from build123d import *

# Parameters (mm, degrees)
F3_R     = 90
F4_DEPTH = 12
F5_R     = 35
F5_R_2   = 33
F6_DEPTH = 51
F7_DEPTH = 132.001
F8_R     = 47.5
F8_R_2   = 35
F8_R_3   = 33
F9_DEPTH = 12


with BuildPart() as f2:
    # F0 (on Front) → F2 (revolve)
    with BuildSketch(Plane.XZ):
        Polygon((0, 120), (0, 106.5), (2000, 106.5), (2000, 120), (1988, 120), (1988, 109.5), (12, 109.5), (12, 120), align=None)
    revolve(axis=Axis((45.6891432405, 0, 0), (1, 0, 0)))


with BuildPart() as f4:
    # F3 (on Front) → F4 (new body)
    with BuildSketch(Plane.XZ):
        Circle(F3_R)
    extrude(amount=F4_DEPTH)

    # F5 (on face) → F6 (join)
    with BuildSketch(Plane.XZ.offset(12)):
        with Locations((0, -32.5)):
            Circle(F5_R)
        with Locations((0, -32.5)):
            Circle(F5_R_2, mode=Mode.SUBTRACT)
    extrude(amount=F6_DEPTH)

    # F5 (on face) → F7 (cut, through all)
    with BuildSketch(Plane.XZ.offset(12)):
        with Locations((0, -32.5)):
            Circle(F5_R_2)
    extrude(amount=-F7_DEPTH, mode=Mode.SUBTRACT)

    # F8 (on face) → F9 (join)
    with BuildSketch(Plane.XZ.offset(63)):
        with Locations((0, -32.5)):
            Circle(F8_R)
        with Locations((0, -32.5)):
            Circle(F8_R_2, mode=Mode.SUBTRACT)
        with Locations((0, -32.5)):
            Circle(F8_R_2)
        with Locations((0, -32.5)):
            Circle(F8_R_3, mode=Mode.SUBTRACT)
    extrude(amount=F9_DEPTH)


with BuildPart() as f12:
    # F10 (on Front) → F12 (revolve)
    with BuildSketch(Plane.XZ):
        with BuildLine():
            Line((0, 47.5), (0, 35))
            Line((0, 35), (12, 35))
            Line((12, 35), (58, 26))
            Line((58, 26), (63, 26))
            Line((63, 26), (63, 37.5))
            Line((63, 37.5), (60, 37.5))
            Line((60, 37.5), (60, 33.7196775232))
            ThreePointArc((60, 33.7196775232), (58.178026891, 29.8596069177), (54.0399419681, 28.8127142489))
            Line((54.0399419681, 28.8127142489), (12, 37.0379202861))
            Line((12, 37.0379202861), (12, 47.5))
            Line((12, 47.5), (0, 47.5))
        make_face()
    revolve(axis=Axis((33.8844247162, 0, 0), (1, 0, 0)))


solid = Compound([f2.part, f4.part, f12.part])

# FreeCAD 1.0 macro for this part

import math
import FreeCAD as App
import Part
import Sketcher
from FreeCAD import Vector
Q = App.Units.Quantity


def add_polygon(sketch, points):
    """Adds a closed chain of lines whose ends are joined by coincident constraints."""
    first, n = sketch.GeometryCount, len(points)
    for a, b in zip(points, points[1:] + points[:1]):
        sketch.addGeometry(Part.LineSegment(App.Vector(*a, 0), App.Vector(*b, 0)), False)
    for i in range(n):
        sketch.addConstraint(Sketcher.Constraint("Coincident", first + i, 2, first + (i + 1) % n, 1))

doc = App.newDocument("Part")
body = doc.addObject("PartDesign::Body", "Body")

# Sketch on XZ plane
sketch1 = body.newObject("Sketcher::SketchObject", "Sketch")
sketch1.AttachmentSupport = (doc.getObject("XZ_Plane"), [""])
sketch1.MapMode = "FlatFace"
add_polygon(sketch1, [(0, 120), (0, 106), (2000, 106), (2000, 120), (1988, 120), (1988, 110), (12, 110), (12, 120)])  # lines 0-7
sketch1.addConstraint(Sketcher.Constraint("Vertical", 0))
sketch1.addConstraint(Sketcher.Constraint("Horizontal", 1))
sketch1.addConstraint(Sketcher.Constraint("Vertical", 2))
sketch1.addConstraint(Sketcher.Constraint("Horizontal", 3))
sketch1.addConstraint(Sketcher.Constraint("Vertical", 4))
sketch1.addConstraint(Sketcher.Constraint("Horizontal", 5))
sketch1.addConstraint(Sketcher.Constraint("Vertical", 6))
sketch1.addConstraint(Sketcher.Constraint("Horizontal", 7))
sketch1.addConstraint(Sketcher.Constraint("PointOnObject", 0, 2, -2))
sketch1.addConstraint(Sketcher.Constraint("Horizontal", 3, 2, 6, 2))
sketch1.addConstraint(Sketcher.Constraint("Equal", 3, 7))
sketch1.addConstraint(Sketcher.Constraint("DistanceX", 1, 1, 1, 2, Q("2000 mm")))
sketch1.addConstraint(Sketcher.Constraint("DistanceX", 3, 2, 3, 1, Q("12 mm")))
sketch1.addConstraint(Sketcher.Constraint("DistanceY", 0, 2, 0, 1, Q("13.5 mm")))
sketch1.addConstraint(Sketcher.Constraint("DistanceY", 4, 2, 4, 1, Q("10.5 mm")))
sketch1.addConstraint(Sketcher.Constraint("DistanceY", -1, 1, 2, 2, Q("120 mm")))
revolution = body.newObject("PartDesign::Revolution", "Revolution")
revolution.Profile = sketch1
revolution.ReferenceAxis = (sketch1, ["H_Axis"])
revolution.Angle = 360
body2 = doc.addObject("PartDesign::Body", "Body001")

# Sketch on XZ plane
sketch2 = body2.newObject("Sketcher::SketchObject", "Sketch001")
sketch2.AttachmentSupport = (doc.getObject("XZ_Plane001"), [""])
sketch2.MapMode = "FlatFace"
sketch2.addGeometry(Part.Circle(Vector(0, 0, 0), Vector(0, 0, 1), 90), False)
sketch2.addConstraint(Sketcher.Constraint("Coincident", 0, 3, -1, 1))
sketch2.addConstraint(Sketcher.Constraint("Diameter", 0, Q("180 mm")))
pad1 = body2.newObject("PartDesign::Pad", "Pad")
pad1.Profile = sketch2
pad1.Length = 12

# Sketch on XZ plane
sketch3 = body2.newObject("Sketcher::SketchObject", "Sketch002")
sketch3.AttachmentSupport = (doc.getObject("XZ_Plane001"), [""])
sketch3.MapMode = "FlatFace"
sketch3.AttachmentOffset = App.Placement(Vector(0, 0, 12), App.Rotation())
sketch3.addGeometry(Part.Circle(Vector(0, -32, 0), Vector(0, 0, 1), 35), False)
sketch3.addGeometry(Part.Circle(Vector(0, -32, 0), Vector(0, 0, 1), 33), False)
sketch3.addConstraint(Sketcher.Constraint("Coincident", 1, 3, 0, 3))
sketch3.addConstraint(Sketcher.Constraint("PointOnObject", 0, 3, -2))
sketch3.addConstraint(Sketcher.Constraint("Diameter", 0, Q("70 mm")))
sketch3.addConstraint(Sketcher.Constraint("Diameter", 1, Q("66 mm")))
sketch3.addConstraint(Sketcher.Constraint("DistanceY", 0, 3, -1, 1, Q("32.5 mm")))
pad2 = body2.newObject("PartDesign::Pad", "Pad001")
pad2.Profile = sketch3
pad2.Length = 51

# Sketch on XZ plane
sketch4 = body2.newObject("Sketcher::SketchObject", "Sketch003")
sketch4.AttachmentSupport = (doc.getObject("XZ_Plane001"), [""])
sketch4.MapMode = "FlatFace"
sketch4.AttachmentOffset = App.Placement(Vector(0, 0, 12), App.Rotation())
sketch4.addGeometry(Part.Circle(Vector(0, -32, 0), Vector(0, 0, 1), 33), False)
sketch4.addConstraint(Sketcher.Constraint("PointOnObject", 0, 3, -2))
sketch4.addConstraint(Sketcher.Constraint("Diameter", 0, Q("66 mm")))
sketch4.addConstraint(Sketcher.Constraint("DistanceY", 0, 3, -1, 1, Q("32.5 mm")))
pocket1 = body2.newObject("PartDesign::Pocket", "Pocket")
pocket1.Profile = sketch4
pocket1.Type = "ThroughAll"

# Sketch on XZ plane
sketch5 = body2.newObject("Sketcher::SketchObject", "Sketch004")
sketch5.AttachmentSupport = (doc.getObject("XZ_Plane001"), [""])
sketch5.MapMode = "FlatFace"
sketch5.AttachmentOffset = App.Placement(Vector(0, 0, 63), App.Rotation())
sketch5.addGeometry(Part.Circle(Vector(0, -32, 0), Vector(0, 0, 1), 48), False)
sketch5.addGeometry(Part.Circle(Vector(0, -32, 0), Vector(0, 0, 1), 33), False)
sketch5.addConstraint(Sketcher.Constraint("Coincident", 1, 3, 0, 3))
sketch5.addConstraint(Sketcher.Constraint("PointOnObject", 0, 3, -2))
sketch5.addConstraint(Sketcher.Constraint("Diameter", 0, Q("95 mm")))
sketch5.addConstraint(Sketcher.Constraint("Diameter", 1, Q("66 mm")))
sketch5.addConstraint(Sketcher.Constraint("DistanceY", 0, 3, -1, 1, Q("32.5 mm")))
pad3 = body2.newObject("PartDesign::Pad", "Pad002")
pad3.Profile = sketch5
pad3.Length = 12
body3 = doc.addObject("PartDesign::Body", "Body002")

# Sketch on XZ plane
sketch6 = body3.newObject("Sketcher::SketchObject", "Sketch005")
sketch6.AttachmentSupport = (doc.getObject("XZ_Plane002"), [""])
sketch6.MapMode = "FlatFace"
sketch6.addGeometry(Part.LineSegment(Vector(0, 47.5, 0), Vector(0, 35, 0)), False)
sketch6.addGeometry(Part.LineSegment(Vector(0, 35, 0), Vector(12, 35, 0)), False)
sketch6.addGeometry(Part.LineSegment(Vector(12, 35, 0), Vector(58, 26, 0)), False)
sketch6.addGeometry(Part.LineSegment(Vector(58, 26, 0), Vector(63, 26, 0)), False)
sketch6.addGeometry(Part.LineSegment(Vector(63, 26, 0), Vector(63, 37.5, 0)), False)
sketch6.addGeometry(Part.LineSegment(Vector(63, 37.5, 0), Vector(60, 37.5, 0)), False)
sketch6.addGeometry(Part.LineSegment(Vector(60, 37.5, 0), Vector(60, 33.7, 0)), False)
sketch6.addGeometry(Part.ArcOfCircle(Part.Circle(Vector(55, 33.7, 0), Vector(0, 0, 1), 5), math.radians(-101), math.radians(0)), False)
sketch6.addGeometry(Part.LineSegment(Vector(54, 28.8, 0), Vector(12, 37, 0)), False)
sketch6.addGeometry(Part.LineSegment(Vector(12, 37, 0), Vector(12, 47.5, 0)), False)
sketch6.addGeometry(Part.LineSegment(Vector(12, 47.5, 0), Vector(0, 47.5, 0)), False)
sketch6.addConstraint(Sketcher.Constraint("Coincident", 0, 2, 1, 1))
sketch6.addConstraint(Sketcher.Constraint("Coincident", 1, 2, 2, 1))
sketch6.addConstraint(Sketcher.Constraint("Coincident", 2, 2, 3, 1))
sketch6.addConstraint(Sketcher.Constraint("Coincident", 3, 2, 4, 1))
sketch6.addConstraint(Sketcher.Constraint("Coincident", 4, 2, 5, 1))
sketch6.addConstraint(Sketcher.Constraint("Coincident", 5, 2, 6, 1))
sketch6.addConstraint(Sketcher.Constraint("Tangent", 6, 2, 7, 2))
sketch6.addConstraint(Sketcher.Constraint("Tangent", 7, 1, 8, 1))
sketch6.addConstraint(Sketcher.Constraint("Coincident", 8, 2, 9, 1))
sketch6.addConstraint(Sketcher.Constraint("Coincident", 9, 2, 10, 1))
sketch6.addConstraint(Sketcher.Constraint("Coincident", 10, 2, 0, 1))
sketch6.addConstraint(Sketcher.Constraint("Vertical", 0))
sketch6.addConstraint(Sketcher.Constraint("Horizontal", 1))
sketch6.addConstraint(Sketcher.Constraint("Horizontal", 3))
sketch6.addConstraint(Sketcher.Constraint("Vertical", 4))
sketch6.addConstraint(Sketcher.Constraint("Horizontal", 5))
sketch6.addConstraint(Sketcher.Constraint("Vertical", 6))
sketch6.addConstraint(Sketcher.Constraint("Vertical", 9))
sketch6.addConstraint(Sketcher.Constraint("Horizontal", 10))
sketch6.addConstraint(Sketcher.Constraint("PointOnObject", 0, 2, -2))
sketch6.addConstraint(Sketcher.Constraint("Parallel", 2, 8))
sketch6.addConstraint(Sketcher.Constraint("Vertical", 1, 2, 8, 2))
sketch6.addConstraint(Sketcher.Constraint("Radius", 7, Q("5 mm")))
sketch6.addConstraint(Sketcher.Constraint("DistanceX", 1, 1, 1, 2, Q("12 mm")))
sketch6.addConstraint(Sketcher.Constraint("DistanceX", 3, 1, 3, 2, Q("5 mm")))
sketch6.addConstraint(Sketcher.Constraint("DistanceX", 5, 2, 5, 1, Q("3 mm")))
sketch6.addConstraint(Sketcher.Constraint("DistanceY", 0, 2, 0, 1, Q("12.5 mm")))
sketch6.addConstraint(Sketcher.Constraint("DistanceY", 4, 1, 4, 2, Q("11.5 mm")))
sketch6.addConstraint(Sketcher.Constraint("DistanceX", -1, 1, 7, 3, Q("55 mm")))
sketch6.addConstraint(Sketcher.Constraint("DistanceY", -1, 1, 0, 2, Q("35 mm")))
sketch6.addConstraint(Sketcher.Constraint("DistanceY", -1, 1, 2, 2, Q("26 mm")))
sketch6.addConstraint(Sketcher.Constraint("DistanceY", 9, 1, 9, 2, Q("10.46208 mm")))
revolution2 = body3.newObject("PartDesign::Revolution", "Revolution001")
revolution2.Profile = sketch6
revolution2.ReferenceAxis = (sketch6, ["H_Axis"])
revolution2.Angle = 360

doc.recompute()
